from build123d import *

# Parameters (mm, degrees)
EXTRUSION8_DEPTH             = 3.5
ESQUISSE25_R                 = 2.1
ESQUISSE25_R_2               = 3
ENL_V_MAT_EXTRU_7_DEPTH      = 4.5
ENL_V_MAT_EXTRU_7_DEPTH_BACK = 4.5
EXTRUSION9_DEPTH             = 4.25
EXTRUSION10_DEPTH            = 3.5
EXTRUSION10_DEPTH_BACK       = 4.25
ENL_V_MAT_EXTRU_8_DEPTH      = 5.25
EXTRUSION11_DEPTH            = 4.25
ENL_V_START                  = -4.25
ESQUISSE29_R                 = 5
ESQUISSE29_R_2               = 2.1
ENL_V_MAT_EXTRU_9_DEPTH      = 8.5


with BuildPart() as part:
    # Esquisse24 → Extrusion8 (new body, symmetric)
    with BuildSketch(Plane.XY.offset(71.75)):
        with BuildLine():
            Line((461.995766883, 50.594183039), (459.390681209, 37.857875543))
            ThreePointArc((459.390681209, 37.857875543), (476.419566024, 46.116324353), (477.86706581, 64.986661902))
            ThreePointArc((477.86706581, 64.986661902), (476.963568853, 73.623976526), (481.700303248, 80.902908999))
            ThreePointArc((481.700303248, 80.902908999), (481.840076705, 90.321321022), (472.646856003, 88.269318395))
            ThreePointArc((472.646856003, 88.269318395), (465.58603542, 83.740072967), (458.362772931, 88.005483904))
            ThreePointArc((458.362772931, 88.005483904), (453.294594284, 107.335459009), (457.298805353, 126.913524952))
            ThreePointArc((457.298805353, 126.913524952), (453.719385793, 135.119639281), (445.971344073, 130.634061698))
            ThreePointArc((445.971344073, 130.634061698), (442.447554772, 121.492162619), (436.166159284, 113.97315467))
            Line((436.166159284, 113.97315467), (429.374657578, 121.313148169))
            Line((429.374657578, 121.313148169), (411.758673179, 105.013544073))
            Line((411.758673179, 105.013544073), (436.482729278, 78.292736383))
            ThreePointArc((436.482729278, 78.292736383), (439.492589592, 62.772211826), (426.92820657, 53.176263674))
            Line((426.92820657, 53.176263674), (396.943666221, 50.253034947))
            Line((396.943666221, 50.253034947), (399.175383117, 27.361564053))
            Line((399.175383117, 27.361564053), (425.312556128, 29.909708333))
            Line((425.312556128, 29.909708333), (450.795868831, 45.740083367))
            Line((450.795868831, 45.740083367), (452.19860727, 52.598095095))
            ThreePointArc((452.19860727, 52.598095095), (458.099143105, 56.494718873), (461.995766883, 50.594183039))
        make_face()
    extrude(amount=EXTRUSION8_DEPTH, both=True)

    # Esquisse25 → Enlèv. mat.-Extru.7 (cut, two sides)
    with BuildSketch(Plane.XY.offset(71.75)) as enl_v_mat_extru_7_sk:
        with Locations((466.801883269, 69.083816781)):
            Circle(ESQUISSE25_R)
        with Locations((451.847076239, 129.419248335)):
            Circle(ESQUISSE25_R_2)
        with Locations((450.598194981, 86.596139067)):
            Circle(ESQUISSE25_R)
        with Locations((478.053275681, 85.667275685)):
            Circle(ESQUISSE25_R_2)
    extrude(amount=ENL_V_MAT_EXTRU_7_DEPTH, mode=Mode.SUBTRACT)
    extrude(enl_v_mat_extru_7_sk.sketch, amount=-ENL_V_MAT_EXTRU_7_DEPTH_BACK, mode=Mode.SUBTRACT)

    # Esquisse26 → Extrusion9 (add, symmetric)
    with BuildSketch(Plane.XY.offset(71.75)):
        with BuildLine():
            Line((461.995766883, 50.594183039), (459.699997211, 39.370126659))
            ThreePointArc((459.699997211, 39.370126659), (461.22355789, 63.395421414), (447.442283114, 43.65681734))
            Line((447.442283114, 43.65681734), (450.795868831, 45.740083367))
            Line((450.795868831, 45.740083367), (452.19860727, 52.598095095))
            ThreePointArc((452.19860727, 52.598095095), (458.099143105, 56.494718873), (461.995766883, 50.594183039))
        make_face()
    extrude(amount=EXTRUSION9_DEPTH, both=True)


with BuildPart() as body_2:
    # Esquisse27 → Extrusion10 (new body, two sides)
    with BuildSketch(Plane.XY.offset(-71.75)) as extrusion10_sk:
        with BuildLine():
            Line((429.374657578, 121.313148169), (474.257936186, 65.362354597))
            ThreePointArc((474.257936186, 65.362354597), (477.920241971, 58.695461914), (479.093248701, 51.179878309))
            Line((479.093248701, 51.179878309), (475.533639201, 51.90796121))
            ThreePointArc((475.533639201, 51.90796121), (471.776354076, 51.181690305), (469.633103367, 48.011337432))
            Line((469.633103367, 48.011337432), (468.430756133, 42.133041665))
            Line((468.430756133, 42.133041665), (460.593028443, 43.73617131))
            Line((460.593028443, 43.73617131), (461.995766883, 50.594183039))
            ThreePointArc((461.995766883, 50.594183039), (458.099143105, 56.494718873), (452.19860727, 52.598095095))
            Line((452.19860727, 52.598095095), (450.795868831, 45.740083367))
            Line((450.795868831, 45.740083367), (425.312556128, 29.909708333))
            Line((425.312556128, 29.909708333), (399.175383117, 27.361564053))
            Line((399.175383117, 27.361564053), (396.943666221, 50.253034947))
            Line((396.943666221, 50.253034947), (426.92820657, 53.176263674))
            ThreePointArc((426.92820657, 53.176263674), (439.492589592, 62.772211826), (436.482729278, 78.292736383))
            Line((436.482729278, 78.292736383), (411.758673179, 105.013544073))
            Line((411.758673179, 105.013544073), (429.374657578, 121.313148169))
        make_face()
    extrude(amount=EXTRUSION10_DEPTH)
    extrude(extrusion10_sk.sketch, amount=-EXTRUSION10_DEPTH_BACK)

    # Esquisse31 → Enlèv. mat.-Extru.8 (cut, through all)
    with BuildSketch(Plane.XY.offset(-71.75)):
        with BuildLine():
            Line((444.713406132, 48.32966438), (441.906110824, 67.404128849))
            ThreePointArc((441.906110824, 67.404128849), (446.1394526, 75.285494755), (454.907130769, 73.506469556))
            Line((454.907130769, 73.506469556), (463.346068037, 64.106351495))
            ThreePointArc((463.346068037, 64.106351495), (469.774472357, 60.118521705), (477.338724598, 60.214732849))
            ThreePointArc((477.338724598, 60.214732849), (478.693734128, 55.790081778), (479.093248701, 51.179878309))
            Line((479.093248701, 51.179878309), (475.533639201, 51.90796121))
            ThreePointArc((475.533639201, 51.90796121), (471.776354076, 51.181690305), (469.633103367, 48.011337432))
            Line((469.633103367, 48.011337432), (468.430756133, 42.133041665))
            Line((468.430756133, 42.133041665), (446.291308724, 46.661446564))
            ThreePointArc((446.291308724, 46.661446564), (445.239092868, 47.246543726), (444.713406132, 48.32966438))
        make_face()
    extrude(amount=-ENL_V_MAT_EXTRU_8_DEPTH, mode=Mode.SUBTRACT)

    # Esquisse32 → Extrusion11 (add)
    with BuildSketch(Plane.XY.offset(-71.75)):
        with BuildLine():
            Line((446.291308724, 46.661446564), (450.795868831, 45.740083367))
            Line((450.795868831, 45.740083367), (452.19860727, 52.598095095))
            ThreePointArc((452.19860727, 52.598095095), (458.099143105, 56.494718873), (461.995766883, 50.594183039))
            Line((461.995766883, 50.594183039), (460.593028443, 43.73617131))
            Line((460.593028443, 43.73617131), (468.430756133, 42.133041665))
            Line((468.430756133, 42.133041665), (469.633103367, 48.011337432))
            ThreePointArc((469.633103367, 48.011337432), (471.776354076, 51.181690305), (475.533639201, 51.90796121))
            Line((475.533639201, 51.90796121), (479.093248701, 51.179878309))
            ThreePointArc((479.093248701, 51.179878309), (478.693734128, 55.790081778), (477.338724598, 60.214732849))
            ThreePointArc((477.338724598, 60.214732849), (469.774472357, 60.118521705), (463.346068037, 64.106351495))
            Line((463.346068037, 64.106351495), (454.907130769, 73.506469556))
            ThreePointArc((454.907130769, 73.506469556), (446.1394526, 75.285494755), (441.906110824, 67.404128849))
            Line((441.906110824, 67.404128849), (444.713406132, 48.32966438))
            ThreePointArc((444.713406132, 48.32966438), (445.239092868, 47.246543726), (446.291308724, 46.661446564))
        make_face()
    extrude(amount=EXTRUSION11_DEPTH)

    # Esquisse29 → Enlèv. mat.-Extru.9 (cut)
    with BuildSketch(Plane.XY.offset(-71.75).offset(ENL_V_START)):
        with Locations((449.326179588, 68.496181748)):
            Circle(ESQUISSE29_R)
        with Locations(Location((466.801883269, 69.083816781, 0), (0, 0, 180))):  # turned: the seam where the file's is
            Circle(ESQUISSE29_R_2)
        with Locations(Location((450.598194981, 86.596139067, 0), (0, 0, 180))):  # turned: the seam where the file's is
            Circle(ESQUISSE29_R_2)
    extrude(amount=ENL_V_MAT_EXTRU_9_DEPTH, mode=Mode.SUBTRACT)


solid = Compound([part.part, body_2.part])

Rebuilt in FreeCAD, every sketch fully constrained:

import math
import FreeCAD as App
import Part
import Sketcher
from FreeCAD import Vector
Q = App.Units.Quantity

doc = App.newDocument("Part")
body = doc.addObject("PartDesign::Body", "Body")

sketch1 = body.newObject("Sketcher::SketchObject", "Sketch")
sketch1.AttachmentSupport = (doc.getObject("XY_Plane"), [""])
sketch1.MapMode = "FlatFace"
sketch1.AttachmentOffset = App.Placement(Vector(0, 0, 71.75), App.Rotation())
sketch1.addGeometry(Part.LineSegment(Vector(462, 51, 0), Vector(459, 38, 0)), False)
sketch1.addGeometry(Part.ArcOfCircle(Part.Circle(Vector(461, 57, 0), Vector(0, 0, 1), 19), math.radians(-94), math.radians(25)), False)
sketch1.addGeometry(Part.ArcOfCircle(Part.Circle(Vector(490, 71, 0), Vector(0, 0, 1), 13), math.radians(127), math.radians(205)), False)
sketch1.addGeometry(Part.ArcOfCircle(Part.Circle(Vector(478, 86, 0), Vector(0, 0, 1), 6), math.radians(-53), math.radians(154)), False)
sketch1.addGeometry(Part.ArcOfCircle(Part.Circle(Vector(465, 92, 0), Vector(0, 0, 1), 8), math.radians(-152), math.radians(-26)), False)
sketch1.addGeometry(Part.ArcOfCircle(Part.Circle(Vector(497, 109, 0), Vector(0, 0, 1), 44), math.radians(155), math.radians(208)), False)
sketch1.addGeometry(Part.ArcOfCircle(Part.Circle(Vector(452, 129, 0), Vector(0, 0, 1), 6), math.radians(-25), math.radians(168)), False)
sketch1.addGeometry(Part.ArcOfCircle(Part.Circle(Vector(417, 137, 0), Vector(0, 0, 1), 30), math.radians(-49), math.radians(-12)), False)
sketch1.addGeometry(Part.LineSegment(Vector(436, 114, 0), Vector(429, 121, 0)), False)
sketch1.addGeometry(Part.LineSegment(Vector(429, 121, 0), Vector(412, 105, 0)), False)
sketch1.addGeometry(Part.LineSegment(Vector(412, 105, 0), Vector(436, 78, 0)), False)
sketch1.addGeometry(Part.ArcOfCircle(Part.Circle(Vector(425, 68, 0), Vector(0, 0, 1), 15), math.radians(-84), math.radians(43)), False)
sketch1.addGeometry(Part.LineSegment(Vector(427, 53, 0), Vector(397, 50, 0)), False)
sketch1.addGeometry(Part.LineSegment(Vector(397, 50, 0), Vector(399, 27, 0)), False)
sketch1.addGeometry(Part.LineSegment(Vector(399, 27, 0), Vector(425, 30, 0)), False)
sketch1.addGeometry(Part.LineSegment(Vector(425, 30, 0), Vector(451, 46, 0)), False)
sketch1.addGeometry(Part.LineSegment(Vector(451, 46, 0), Vector(452, 53, 0)), False)
sketch1.addGeometry(Part.ArcOfCircle(Part.Circle(Vector(457, 52, 0), Vector(0, 0, 1), 5), math.radians(-12), math.radians(168)), False)
sketch1.addConstraint(Sketcher.Constraint("Coincident", 0, 2, 1, 1))
sketch1.addConstraint(Sketcher.Constraint("Tangent", 1, 2, 2, 2))
sketch1.addConstraint(Sketcher.Constraint("Tangent", 2, 1, 3, 1))
sketch1.addConstraint(Sketcher.Constraint("Tangent", 3, 2, 4, 2))
sketch1.addConstraint(Sketcher.Constraint("Tangent", 4, 1, 5, 2))
sketch1.addConstraint(Sketcher.Constraint("Tangent", 5, 1, 6, 1))
sketch1.addConstraint(Sketcher.Constraint("Tangent", 6, 2, 7, 2))
sketch1.addConstraint(Sketcher.Constraint("Coincident", 7, 1, 8, 1))
sketch1.addConstraint(Sketcher.Constraint("Coincident", 8, 2, 9, 1))
sketch1.addConstraint(Sketcher.Constraint("Coincident", 9, 2, 10, 1))
sketch1.addConstraint(Sketcher.Constraint("Tangent", 10, 2, 11, 2))
sketch1.addConstraint(Sketcher.Constraint("Tangent", 11, 1, 12, 1))
sketch1.addConstraint(Sketcher.Constraint("Coincident", 12, 2, 13, 1))
sketch1.addConstraint(Sketcher.Constraint("Coincident", 13, 2, 14, 1))
sketch1.addConstraint(Sketcher.Constraint("Coincident", 14, 2, 15, 1))
sketch1.addConstraint(Sketcher.Constraint("Coincident", 15, 2, 16, 1))
sketch1.addConstraint(Sketcher.Constraint("Tangent", 16, 2, 17, 2))
sketch1.addConstraint(Sketcher.Constraint("Tangent", 17, 1, 0, 1))
sketch1.addConstraint(Sketcher.Constraint("Equal", 3, 6))
sketch1.addConstraint(Sketcher.Constraint("Perpendicular", 8, 9))
sketch1.addConstraint(Sketcher.Constraint("Perpendicular", 9, 10))
sketch1.addConstraint(Sketcher.Constraint("Perpendicular", 12, 13))
sketch1.addConstraint(Sketcher.Constraint("Perpendicular", 13, 14))
sketch1.addConstraint(Sketcher.Constraint("Parallel", 0, 16))
sketch1.addConstraint(Sketcher.Constraint("Radius", 1, Q("19 mm")))
sketch1.addConstraint(Sketcher.Constraint("Radius", 2, Q("13 mm")))
sketch1.addConstraint(Sketcher.Constraint("Radius", 3, Q("6 mm")))
sketch1.addConstraint(Sketcher.Constraint("Radius", 4, Q("8 mm")))
sketch1.addConstraint(Sketcher.Constraint("Radius", 5, Q("44 mm")))
sketch1.addConstraint(Sketcher.Constraint("Radius", 7, Q("30 mm")))
sketch1.addConstraint(Sketcher.Constraint("Radius", 11, Q("15 mm")))
sketch1.addConstraint(Sketcher.Constraint("Radius", 17, Q("5 mm")))
sketch1.addConstraint(Sketcher.Constraint("Distance", 0, Q("13 mm")))
sketch1.addConstraint(Sketcher.Constraint("Distance", 8, Q("10 mm")))
sketch1.addConstraint(Sketcher.Constraint("Distance", 9, Q("24 mm")))
sketch1.addConstraint(Sketcher.Constraint("Distance", 13, Q("23 mm")))
sketch1.addConstraint(Sketcher.Constraint("Distance", 15, Q("30 mm")))
sketch1.addConstraint(Sketcher.Constraint("Distance", 16, Q("7 mm")))
sketch1.addConstraint(Sketcher.Constraint("DistanceY", 1, 3, 2, 3, Q("13.768499 mm")))
sketch1.addConstraint(Sketcher.Constraint("DistanceX", 4, 3, 2, 3, Q("24.1639 mm")))
sketch1.addConstraint(Sketcher.Constraint("DistanceX", 6, 3, 3, 3, Q("26.206199 mm")))
sketch1.addConstraint(Sketcher.Constraint("DistanceY", 0, 2, 3, 3, Q("47.8094 mm")))
sketch1.addConstraint(Sketcher.Constraint("DistanceY", 2, 1, 4, 3, Q("10.8358 mm")))
sketch1.addConstraint(Sketcher.Constraint("DistanceX", 8, 2, 7, 1, Q("6.791502 mm")))
sketch1.addConstraint(Sketcher.Constraint("DistanceY", 8, 2, 6, 3, Q("8.1061 mm")))
sketch1.addConstraint(Sketcher.Constraint("DistanceY", 12, 2, 10, 2, Q("28.039701 mm")))
sketch1.addConstraint(Sketcher.Constraint("DistanceX", 13, 2, 0, 2, Q("60.215298 mm")))
sketch1.addConstraint(Sketcher.Constraint("DistanceX", 11, 1, 16, 2, Q("25.270401 mm")))
sketch1.addConstraint(Sketcher.Constraint("DistanceX", 15, 2, 17, 1, Q("11.199898 mm")))
sketch1.addConstraint(Sketcher.Constraint("Distance", 14, Q("26.26109 mm")))
sketch1.addConstraint(Sketcher.Constraint("DistanceX", -1, 1, 1, 3, Q("460.715721 mm")))
sketch1.addConstraint(Sketcher.Constraint("DistanceY", -1, 1, 4, 3, Q("91.738709 mm")))
sketch1.addConstraint(Sketcher.Constraint("DistanceY", -1, 1, 5, 3, Q("108.53822 mm")))
pad1 = body.newObject("PartDesign::Pad", "Pad")
pad1.Profile = sketch1
pad1.Length = 7
pad1.Midplane = True

sketch2 = body.newObject("Sketcher::SketchObject", "Sketch001")
sketch2.AttachmentSupport = (doc.getObject("XY_Plane"), [""])
sketch2.MapMode = "FlatFace"
sketch2.AttachmentOffset = App.Placement(Vector(0, 0, 71.75), App.Rotation())
sketch2.addGeometry(Part.Circle(Vector(466.8, 69.1, 0), Vector(0, 0, 1), 2.1), False)
sketch2.addGeometry(Part.Circle(Vector(451.8, 129.4, 0), Vector(0, 0, 1), 3), False)
sketch2.addGeometry(Part.Circle(Vector(450.6, 86.6, 0), Vector(0, 0, 1), 2.1), False)
sketch2.addGeometry(Part.Circle(Vector(478.1, 85.7, 0), Vector(0, 0, 1), 3), False)
sketch2.addConstraint(Sketcher.Constraint("Equal", 0, 2))
sketch2.addConstraint(Sketcher.Constraint("Equal", 1, 3))
sketch2.addConstraint(Sketcher.Constraint("Diameter", 1, Q("6 mm")))
sketch2.addConstraint(Sketcher.Constraint("Diameter", 0, Q("4.2 mm")))
sketch2.addConstraint(Sketcher.Constraint("DistanceX", 1, 3, 3, 3, Q("26.206199 mm")))
sketch2.addConstraint(Sketcher.Constraint("DistanceY", -1, 1, 1, 3, Q("129.419248 mm")))
sketch2.addConstraint(Sketcher.Constraint("DistanceY", -1, 1, 2, 3, Q("86.596139 mm")))
sketch2.addConstraint(Sketcher.Constraint("DistanceY", 0, 3, 1, 3, Q("60.335432 mm")))
sketch2.addConstraint(Sketcher.Constraint("DistanceX", 2, 3, 0, 3, Q("16.203688 mm")))
sketch2.addConstraint(Sketcher.Constraint("DistanceX", 2, 3, 1, 3, Q("1.248881 mm")))
sketch2.addConstraint(Sketcher.Constraint("DistanceY", 0, 3, 3, 3, Q("16.583459 mm")))
sketch2.addConstraint(Sketcher.Constraint("DistanceX", -1, 1, 0, 3, Q("466.801883 mm")))
pocket1 = body.newObject("PartDesign::Pocket", "Pocket")
pocket1.Profile = sketch2
pocket1.Type = "ThroughAll"
pocket1.Midplane = True

sketch3 = body.newObject("Sketcher::SketchObject", "Sketch002")
sketch3.AttachmentSupport = (doc.getObject("XY_Plane"), [""])
sketch3.MapMode = "FlatFace"
sketch3.AttachmentOffset = App.Placement(Vector(0, 0, 71.75), App.Rotation())
sketch3.addGeometry(Part.LineSegment(Vector(462, 50.6, 0), Vector(459.7, 39.4, 0)), False)
sketch3.addGeometry(Part.ArcOfCircle(Part.Circle(Vector(457.1, 51.6, 0), Vector(0, 0, 1), 12.5), math.radians(-78), math.radians(219)), False)
sketch3.addGeometry(Part.LineSegment(Vector(447.4, 43.7, 0), Vector(450.8, 45.7, 0)), False)
sketch3.addGeometry(Part.LineSegment(Vector(450.8, 45.7, 0), Vector(452.2, 52.6, 0)), False)
sketch3.addGeometry(Part.ArcOfCircle(Part.Circle(Vector(457.1, 51.6, 0), Vector(0, 0, 1), 5), math.radians(-12), math.radians(168)), False)
sketch3.addConstraint(Sketcher.Constraint("Coincident", 0, 2, 1, 1))
sketch3.addConstraint(Sketcher.Constraint("Coincident", 1, 2, 2, 1))
sketch3.addConstraint(Sketcher.Constraint("Coincident", 2, 2, 3, 1))
sketch3.addConstraint(Sketcher.Constraint("Tangent", 3, 2, 4, 2))
sketch3.addConstraint(Sketcher.Constraint("Tangent", 4, 1, 0, 1))
sketch3.addConstraint(Sketcher.Constraint("Coincident", 4, 3, 1, 3))
sketch3.addConstraint(Sketcher.Constraint("Parallel", 0, 3))
sketch3.addConstraint(Sketcher.Constraint("Radius", 4, Q("5 mm")))
sketch3.addConstraint(Sketcher.Constraint("Radius", 1, Q("12.5 mm")))
sketch3.addConstraint(Sketcher.Constraint("Distance", 3, Q("7 mm")))
sketch3.addConstraint(Sketcher.Constraint("DistanceX", 2, 2, 4, 1, Q("11.199898 mm")))
sketch3.addConstraint(Sketcher.Constraint("Distance", 2, Q("3.947979 mm")))
sketch3.addConstraint(Sketcher.Constraint("DistanceY", -1, 1, 1, 3, Q("51.596139 mm")))
sketch3.addConstraint(Sketcher.Constraint("DistanceX", -1, 1, 2, 2, Q("450.795869 mm")))
pad2 = body.newObject("PartDesign::Pad", "Pad001")
pad2.Profile = sketch3
pad2.Length = 8.5
pad2.Midplane = True
body2 = doc.addObject("PartDesign::Body", "Body001")

sketch4 = body2.newObject("Sketcher::SketchObject", "Sketch003")
sketch4.AttachmentSupport = (doc.getObject("XY_Plane001"), [""])
sketch4.MapMode = "FlatFace"
sketch4.AttachmentOffset = App.Placement(Vector(0, 0, -71.75), App.Rotation())
sketch4.addGeometry(Part.LineSegment(Vector(474.3, 65.4, 0), Vector(429.4, 121.3, 0)), False)
sketch4.addGeometry(Part.LineSegment(Vector(429.4, 121.3, 0), Vector(411.8, 105, 0)), False)
sketch4.addGeometry(Part.LineSegment(Vector(411.8, 105, 0), Vector(436.5, 78.3, 0)), False)
sketch4.addGeometry(Part.ArcOfCircle(Part.Circle(Vector(425.5, 68.1, 0), Vector(0, 0, 1), 15), math.radians(-84), math.radians(43)), False)
sketch4.addGeometry(Part.LineSegment(Vector(426.9, 53.2, 0), Vector(396.9, 50.3, 0)), False)
sketch4.addGeometry(Part.LineSegment(Vector(396.9, 50.3, 0), Vector(399.2, 27.4, 0)), False)
sketch4.addGeometry(Part.LineSegment(Vector(399.2, 27.4, 0), Vector(425.3, 29.9, 0)), False)
sketch4.addGeometry(Part.LineSegment(Vector(425.3, 29.9, 0), Vector(450.8, 45.7, 0)), False)
sketch4.addGeometry(Part.LineSegment(Vector(450.8, 45.7, 0), Vector(452.2, 52.6, 0)), False)
sketch4.addGeometry(Part.ArcOfCircle(Part.Circle(Vector(457.1, 51.6, 0), Vector(0, 0, 1), 5), math.radians(-12), math.radians(168)), False)
sketch4.addGeometry(Part.LineSegment(Vector(462, 50.6, 0), Vector(460.6, 43.7, 0)), False)
sketch4.addGeometry(Part.LineSegment(Vector(460.6, 43.7, 0), Vector(468.4, 42.1, 0)), False)
sketch4.addGeometry(Part.LineSegment(Vector(468.4, 42.1, 0), Vector(469.6, 48, 0)), False)
sketch4.addGeometry(Part.ArcOfCircle(Part.Circle(Vector(474.5, 47, 0), Vector(0, 0, 1), 5), math.radians(78), math.radians(168)), False)
sketch4.addGeometry(Part.LineSegment(Vector(475.5, 51.9, 0), Vector(479.1, 51.2, 0)), False)
sketch4.addGeometry(Part.ArcOfCircle(Part.Circle(Vector(457.1, 51.6, 0), Vector(0, 0, 1), 22), math.radians(-1), math.radians(39)), False)
sketch4.addConstraint(Sketcher.Constraint("Coincident", 0, 2, 1, 1))
sketch4.addConstraint(Sketcher.Constraint("Coincident", 1, 2, 2, 1))
sketch4.addConstraint(Sketcher.Constraint("Tangent", 2, 2, 3, 2))
sketch4.addConstraint(Sketcher.Constraint("Tangent", 3, 1, 4, 1))
sketch4.addConstraint(Sketcher.Constraint("Coincident", 4, 2, 5, 1))
sketch4.addConstraint(Sketcher.Constraint("Coincident", 5, 2, 6, 1))
sketch4.addConstraint(Sketcher.Constraint("Coincident", 6, 2, 7, 1))
sketch4.addConstraint(Sketcher.Constraint("Coincident", 7, 2, 8, 1))
sketch4.addConstraint(Sketcher.Constraint("Tangent", 8, 2, 9, 2))
sketch4.addConstraint(Sketcher.Constraint("Tangent", 9, 1, 10, 1))
sketch4.addConstraint(Sketcher.Constraint("Coincident", 10, 2, 11, 1))
sketch4.addConstraint(Sketcher.Constraint("Coincident", 11, 2, 12, 1))
sketch4.addConstraint(Sketcher.Constraint("Tangent", 12, 2, 13, 2))
sketch4.addConstraint(Sketcher.Constraint("Tangent", 13, 1, 14, 1))
sketch4.addConstraint(Sketcher.Constraint("Coincident", 14, 2, 15, 1))
sketch4.addConstraint(Sketcher.Constraint("Tangent", 15, 2, 0, 1))
sketch4.addConstraint(Sketcher.Constraint("Coincident", 15, 3, 9, 3))
sketch4.addConstraint(Sketcher.Constraint("Equal", 9, 13))
sketch4.addConstraint(Sketcher.Constraint("Perpendicular", 1, 2))
sketch4.addConstraint(Sketcher.Constraint("Perpendicular", 4, 5))
sketch4.addConstraint(Sketcher.Constraint("Perpendicular", 5, 6))
sketch4.addConstraint(Sketcher.Constraint("Parallel", 8, 10))
sketch4.addConstraint(Sketcher.Constraint("Perpendicular", 10, 11))
sketch4.addConstraint(Sketcher.Constraint("Perpendicular", 11, 12))
sketch4.addConstraint(Sketcher.Constraint("Perpendicular", 12, 14))
sketch4.addConstraint(Sketcher.Constraint("Equal", 8, 10))
sketch4.addConstraint(Sketcher.Constraint("Radius", 3, Q("15 mm")))
sketch4.addConstraint(Sketcher.Constraint("Radius", 9, Q("5 mm")))
sketch4.addConstraint(Sketcher.Constraint("Radius", 15, Q("22 mm")))
sketch4.addConstraint(Sketcher.Constraint("Distance", 1, Q("24 mm")))
sketch4.addConstraint(Sketcher.Constraint("Distance", 5, Q("23 mm")))
sketch4.addConstraint(Sketcher.Constraint("Distance", 7, Q("30 mm")))
sketch4.addConstraint(Sketcher.Constraint("Distance", 8, Q("7 mm")))
sketch4.addConstraint(Sketcher.Constraint("Distance", 11, Q("8 mm")))
sketch4.addConstraint(Sketcher.Constraint("Distance", 12, Q("6 mm")))
sketch4.addConstraint(Sketcher.Constraint("DistanceY", 4, 2, 2, 2, Q("28.039701 mm")))
sketch4.addConstraint(Sketcher.Constraint("DistanceY", 5, 2, 3, 1, Q("25.8147 mm")))
sketch4.addConstraint(Sketcher.Constraint("DistanceY", 7, 2, 13, 3, Q("1.269298 mm")))
sketch4.addConstraint(Sketcher.Constraint("DistanceX", 3, 1, 8, 2, Q("25.270401 mm")))
sketch4.addConstraint(Sketcher.Constraint("Distance", 6, Q("26.26109 mm")))
sketch4.addConstraint(Sketcher.Constraint("DistanceX", -1, 1, 3, 3, Q("425.472739 mm")))
sketch4.addConstraint(Sketcher.Constraint("DistanceY", -1, 1, 9, 3, Q("51.596139 mm")))
sketch4.addConstraint(Sketcher.Constraint("DistanceY", -1, 1, 0, 2, Q("121.313148 mm")))
sketch4.addConstraint(Sketcher.Constraint("DistanceY", -1, 1, 6, 2, Q("29.909708 mm")))
pad3 = body2.newObject("PartDesign::Pad", "Pad002")
pad3.Profile = sketch4
pad3.Type = "TwoLengths"
pad3.Length = 3.5
pad3.Length2 = 4.25

sketch5 = body2.newObject("Sketcher::SketchObject", "Sketch004")
sketch5.AttachmentSupport = (doc.getObject("XY_Plane001"), [""])
sketch5.MapMode = "FlatFace"
sketch5.AttachmentOffset = App.Placement(Vector(0, 0, -71.75), App.Rotation())
sketch5.addGeometry(Part.LineSegment(Vector(441.9, 67.4, 0), Vector(444.7, 48.3, 0)), False)
sketch5.addGeometry(Part.ArcOfCircle(Part.Circle(Vector(446.7, 48.6, 0), Vector(0, 0, 1), 2), math.radians(-172), math.radians(-102)), False)
sketch5.addGeometry(Part.LineSegment(Vector(446.3, 46.7, 0), Vector(468.4, 42.1, 0)), False)
sketch5.addGeometry(Part.LineSegment(Vector(468.4, 42.1, 0), Vector(469.6, 48, 0)), False)
sketch5.addGeometry(Part.ArcOfCircle(Part.Circle(Vector(474.5, 47, 0), Vector(0, 0, 1), 5), math.radians(78), math.radians(168)), False)
sketch5.addGeometry(Part.LineSegment(Vector(475.5, 51.9, 0), Vector(479.1, 51.2, 0)), False)
sketch5.addGeometry(Part.ArcOfCircle(Part.Circle(Vector(457.1, 51.6, 0), Vector(0, 0, 1), 22), math.radians(-1), math.radians(23)), False)
sketch5.addGeometry(Part.ArcOfCircle(Part.Circle(Vector(473.4, 73.1, 0), Vector(0, 0, 1), 13.5), math.radians(-138), math.radians(-73)), False)
sketch5.addGeometry(Part.LineSegment(Vector(463.3, 64.1, 0), Vector(454.9, 73.5, 0)), False)
sketch5.addGeometry(Part.ArcOfCircle(Part.Circle(Vector(449.3, 68.5, 0), Vector(0, 0, 1), 7.5), math.radians(42), math.radians(188)), False)
sketch5.addConstraint(Sketcher.Constraint("Tangent", 0, 2, 1, 1))
sketch5.addConstraint(Sketcher.Constraint("Tangent", 1, 2, 2, 1))
sketch5.addConstraint(Sketcher.Constraint("Coincident", 2, 2, 3, 1))
sketch5.addConstraint(Sketcher.Constraint("Tangent", 3, 2, 4, 2))
sketch5.addConstraint(Sketcher.Constraint("Tangent", 4, 1, 5, 1))
sketch5.addConstraint(Sketcher.Constraint("Coincident", 5, 2, 6, 1))
sketch5.addConstraint(Sketcher.Constraint("Coincident", 6, 2, 7, 2))
sketch5.addConstraint(Sketcher.Constraint("Tangent", 7, 1, 8, 1))
sketch5.addConstraint(Sketcher.Constraint("Tangent", 8, 2, 9, 1))
sketch5.addConstraint(Sketcher.Constraint("Tangent", 9, 2, 0, 1))
sketch5.addConstraint(Sketcher.Constraint("Perpendicular", 2, 3))
sketch5.addConstraint(Sketcher.Constraint("Perpendicular", 3, 5))
sketch5.addConstraint(Sketcher.Constraint("Radius", 1, Q("2 mm")))
sketch5.addConstraint(Sketcher.Constraint("Radius", 4, Q("5 mm")))
sketch5.addConstraint(Sketcher.Constraint("Radius", 6, Q("22 mm")))
sketch5.addConstraint(Sketcher.Constraint("Radius", 7, Q("13.5 mm")))
sketch5.addConstraint(Sketcher.Constraint("Radius", 9, Q("7.5 mm")))
sketch5.addConstraint(Sketcher.Constraint("Distance", 3, Q("6 mm")))
sketch5.addConstraint(Sketcher.Constraint("DistanceX", 9, 3, 7, 3, Q("24.065601 mm")))
sketch5.addConstraint(Sketcher.Constraint("DistanceY", 4, 3, 9, 3, Q("21.4868 mm")))
sketch5.addConstraint(Sketcher.Constraint("DistanceY", 3, 2, 6, 3, Q("3.584802 mm")))
sketch5.addConstraint(Sketcher.Constraint("DistanceY", 7, 3, 8, 2, Q("0.3816 mm")))
sketch5.addConstraint(Sketcher.Constraint("Distance", 0, Q("19.27994 mm")))
sketch5.addConstraint(Sketcher.Constraint("DistanceX", -1, 1, 1, 3, Q("446.692091 mm")))
sketch5.addConstraint(Sketcher.Constraint("DistanceY", -1, 1, 1, 3, Q("48.620878 mm")))
sketch5.addConstraint(Sketcher.Constraint("DistanceY", -1, 1, 4, 3, Q("47.009381 mm")))
sketch5.addConstraint(Sketcher.Constraint("DistanceY", -1, 1, 6, 3, Q("51.596139 mm")))
sketch5.addConstraint(Sketcher.Constraint("DistanceX", -1, 1, 5, 2, Q("479.093249 mm")))
pocket2 = body2.newObject("PartDesign::Pocket", "Pocket001")
pocket2.Profile = sketch5
pocket2.Type = "ThroughAll"

sketch6 = body2.newObject("Sketcher::SketchObject", "Sketch005")
sketch6.AttachmentSupport = (doc.getObject("XY_Plane001"), [""])
sketch6.MapMode = "FlatFace"
sketch6.AttachmentOffset = App.Placement(Vector(0, 0, -71.75), App.Rotation())
sketch6.addGeometry(Part.LineSegment(Vector(446.3, 46.7, 0), Vector(450.8, 45.7, 0)), False)
sketch6.addGeometry(Part.LineSegment(Vector(450.8, 45.7, 0), Vector(452.2, 52.6, 0)), False)
sketch6.addGeometry(Part.ArcOfCircle(Part.Circle(Vector(457.1, 51.6, 0), Vector(0, 0, 1), 5), math.radians(-12), math.radians(168)), False)
sketch6.addGeometry(Part.LineSegment(Vector(462, 50.6, 0), Vector(460.6, 43.7, 0)), False)
sketch6.addGeometry(Part.LineSegment(Vector(460.6, 43.7, 0), Vector(468.4, 42.1, 0)), False)
sketch6.addGeometry(Part.LineSegment(Vector(468.4, 42.1, 0), Vector(469.6, 48, 0)), False)
sketch6.addGeometry(Part.ArcOfCircle(Part.Circle(Vector(474.5, 47, 0), Vector(0, 0, 1), 5), math.radians(78), math.radians(168)), False)
sketch6.addGeometry(Part.LineSegment(Vector(475.5, 51.9, 0), Vector(479.1, 51.2, 0)), False)
sketch6.addGeometry(Part.ArcOfCircle(Part.Circle(Vector(457.1, 51.6, 0), Vector(0, 0, 1), 22), math.radians(-1), math.radians(23)), False)
sketch6.addGeometry(Part.ArcOfCircle(Part.Circle(Vector(473.4, 73.1, 0), Vector(0, 0, 1), 13.5), math.radians(-138), math.radians(-73)), False)
sketch6.addGeometry(Part.LineSegment(Vector(463.3, 64.1, 0), Vector(454.9, 73.5, 0)), False)
sketch6.addGeometry(Part.ArcOfCircle(Part.Circle(Vector(449.3, 68.5, 0), Vector(0, 0, 1), 7.5), math.radians(42), math.radians(188)), False)
sketch6.addGeometry(Part.LineSegment(Vector(441.9, 67.4, 0), Vector(444.7, 48.3, 0)), False)
sketch6.addGeometry(Part.ArcOfCircle(Part.Circle(Vector(446.7, 48.6, 0), Vector(0, 0, 1), 2), math.radians(-172), math.radians(-102)), False)
sketch6.addConstraint(Sketcher.Constraint("Coincident", 0, 2, 1, 1))
sketch6.addConstraint(Sketcher.Constraint("Tangent", 1, 2, 2, 2))
sketch6.addConstraint(Sketcher.Constraint("Tangent", 2, 1, 3, 1))
sketch6.addConstraint(Sketcher.Constraint("Coincident", 3, 2, 4, 1))
sketch6.addConstraint(Sketcher.Constraint("Coincident", 4, 2, 5, 1))
sketch6.addConstraint(Sketcher.Constraint("Tangent", 5, 2, 6, 2))
sketch6.addConstraint(Sketcher.Constraint("Tangent", 6, 1, 7, 1))
sketch6.addConstraint(Sketcher.Constraint("Coincident", 7, 2, 8, 1))
sketch6.addConstraint(Sketcher.Constraint("Coincident", 8, 2, 9, 2))
sketch6.addConstraint(Sketcher.Constraint("Tangent", 9, 1, 10, 1))
sketch6.addConstraint(Sketcher.Constraint("Tangent", 10, 2, 11, 1))
sketch6.addConstraint(Sketcher.Constraint("Tangent", 11, 2, 12, 1))
sketch6.addConstraint(Sketcher.Constraint("Tangent", 12, 2, 13, 1))
sketch6.addConstraint(Sketcher.Constraint("Tangent", 13, 2, 0, 1))
sketch6.addConstraint(Sketcher.Constraint("Coincident", 8, 3, 2, 3))
sketch6.addConstraint(Sketcher.Constraint("Equal", 2, 6))
sketch6.addConstraint(Sketcher.Constraint("Perpendicular", 0, 1))
sketch6.addConstraint(Sketcher.Constraint("Parallel", 1, 3))
sketch6.addConstraint(Sketcher.Constraint("Perpendicular", 3, 4))
sketch6.addConstraint(Sketcher.Constraint("Perpendicular", 4, 5))
sketch6.addConstraint(Sketcher.Constraint("Perpendicular", 5, 7))
sketch6.addConstraint(Sketcher.Constraint("Equal", 1, 3))
sketch6.addConstraint(Sketcher.Constraint("Radius", 2, Q("5 mm")))
sketch6.addConstraint(Sketcher.Constraint("Radius", 8, Q("22 mm")))
sketch6.addConstraint(Sketcher.Constraint("Radius", 13, Q("2 mm")))
sketch6.addConstraint(Sketcher.Constraint("Radius", 9, Q("13.5 mm")))
sketch6.addConstraint(Sketcher.Constraint("Radius", 11, Q("7.5 mm")))
sketch6.addConstraint(Sketcher.Constraint("Distance", 1, Q("7 mm")))
sketch6.addConstraint(Sketcher.Constraint("Distance", 4, Q("8 mm")))
sketch6.addConstraint(Sketcher.Constraint("Distance", 5, Q("6 mm")))
sketch6.addConstraint(Sketcher.Constraint("DistanceX", 11, 3, 9, 3, Q("24.065601 mm")))
sketch6.addConstraint(Sketcher.Constraint("DistanceY", 6, 3, 11, 3, Q("21.4868 mm")))
sketch6.addConstraint(Sketcher.Constraint("DistanceY", 0, 2, 11, 3, Q("22.756098 mm")))
sketch6.addConstraint(Sketcher.Constraint("DistanceX", 2, 1, 9, 1, Q("1.350301 mm")))
sketch6.addConstraint(Sketcher.Constraint("DistanceY", 9, 3, 10, 2, Q("0.3816 mm")))
sketch6.addConstraint(Sketcher.Constraint("DistanceX", 12, 2, 1, 2, Q("7.485201 mm")))
sketch6.addConstraint(Sketcher.Constraint("DistanceY", -1, 1, 2, 3, Q("51.596139 mm")))
sketch6.addConstraint(Sketcher.Constraint("DistanceX", -1, 1, 9, 3, Q("473.39178 mm")))
pad4 = body2.newObject("PartDesign::Pad", "Pad003")
pad4.Profile = sketch6
pad4.Length = 4.25

sketch7 = body2.newObject("Sketcher::SketchObject", "Sketch006")
sketch7.AttachmentSupport = (doc.getObject("XY_Plane001"), [""])
sketch7.MapMode = "FlatFace"
sketch7.AttachmentOffset = App.Placement(Vector(0, 0, -76), App.Rotation())
sketch7.addGeometry(Part.Circle(Vector(449.3, 68.5, 0), Vector(0, 0, 1), 5), False)
sketch7.addGeometry(Part.Circle(Vector(466.8, 69.1, 0), Vector(0, 0, 1), 2.1), False)
sketch7.addGeometry(Part.Circle(Vector(450.6, 86.6, 0), Vector(0, 0, 1), 2.1), False)
sketch7.addConstraint(Sketcher.Constraint("Equal", 1, 2))
sketch7.addConstraint(Sketcher.Constraint("Diameter", 0, Q("10 mm")))
sketch7.addConstraint(Sketcher.Constraint("Diameter", 1, Q("4.2 mm")))
sketch7.addConstraint(Sketcher.Constraint("DistanceX", -1, 1, 0, 3, Q("449.32618 mm")))
sketch7.addConstraint(Sketcher.Constraint("DistanceY", -1, 1, 0, 3, Q("68.496182 mm")))
sketch7.addConstraint(Sketcher.Constraint("DistanceY", -1, 1, 2, 3, Q("86.596139 mm")))
sketch7.addConstraint(Sketcher.Constraint("DistanceX", 2, 3, 1, 3, Q("16.203688 mm")))
sketch7.addConstraint(Sketcher.Constraint("DistanceX", -1, 1, 1, 3, Q("466.801883 mm")))
sketch7.addConstraint(Sketcher.Constraint("DistanceY", -1, 1, 1, 3, Q("69.083817 mm")))
pocket3 = body2.newObject("PartDesign::Pocket", "Pocket002")
pocket3.Profile = sketch7
pocket3.Length = 8.5
pocket3.Reversed = True

doc.recompute()
